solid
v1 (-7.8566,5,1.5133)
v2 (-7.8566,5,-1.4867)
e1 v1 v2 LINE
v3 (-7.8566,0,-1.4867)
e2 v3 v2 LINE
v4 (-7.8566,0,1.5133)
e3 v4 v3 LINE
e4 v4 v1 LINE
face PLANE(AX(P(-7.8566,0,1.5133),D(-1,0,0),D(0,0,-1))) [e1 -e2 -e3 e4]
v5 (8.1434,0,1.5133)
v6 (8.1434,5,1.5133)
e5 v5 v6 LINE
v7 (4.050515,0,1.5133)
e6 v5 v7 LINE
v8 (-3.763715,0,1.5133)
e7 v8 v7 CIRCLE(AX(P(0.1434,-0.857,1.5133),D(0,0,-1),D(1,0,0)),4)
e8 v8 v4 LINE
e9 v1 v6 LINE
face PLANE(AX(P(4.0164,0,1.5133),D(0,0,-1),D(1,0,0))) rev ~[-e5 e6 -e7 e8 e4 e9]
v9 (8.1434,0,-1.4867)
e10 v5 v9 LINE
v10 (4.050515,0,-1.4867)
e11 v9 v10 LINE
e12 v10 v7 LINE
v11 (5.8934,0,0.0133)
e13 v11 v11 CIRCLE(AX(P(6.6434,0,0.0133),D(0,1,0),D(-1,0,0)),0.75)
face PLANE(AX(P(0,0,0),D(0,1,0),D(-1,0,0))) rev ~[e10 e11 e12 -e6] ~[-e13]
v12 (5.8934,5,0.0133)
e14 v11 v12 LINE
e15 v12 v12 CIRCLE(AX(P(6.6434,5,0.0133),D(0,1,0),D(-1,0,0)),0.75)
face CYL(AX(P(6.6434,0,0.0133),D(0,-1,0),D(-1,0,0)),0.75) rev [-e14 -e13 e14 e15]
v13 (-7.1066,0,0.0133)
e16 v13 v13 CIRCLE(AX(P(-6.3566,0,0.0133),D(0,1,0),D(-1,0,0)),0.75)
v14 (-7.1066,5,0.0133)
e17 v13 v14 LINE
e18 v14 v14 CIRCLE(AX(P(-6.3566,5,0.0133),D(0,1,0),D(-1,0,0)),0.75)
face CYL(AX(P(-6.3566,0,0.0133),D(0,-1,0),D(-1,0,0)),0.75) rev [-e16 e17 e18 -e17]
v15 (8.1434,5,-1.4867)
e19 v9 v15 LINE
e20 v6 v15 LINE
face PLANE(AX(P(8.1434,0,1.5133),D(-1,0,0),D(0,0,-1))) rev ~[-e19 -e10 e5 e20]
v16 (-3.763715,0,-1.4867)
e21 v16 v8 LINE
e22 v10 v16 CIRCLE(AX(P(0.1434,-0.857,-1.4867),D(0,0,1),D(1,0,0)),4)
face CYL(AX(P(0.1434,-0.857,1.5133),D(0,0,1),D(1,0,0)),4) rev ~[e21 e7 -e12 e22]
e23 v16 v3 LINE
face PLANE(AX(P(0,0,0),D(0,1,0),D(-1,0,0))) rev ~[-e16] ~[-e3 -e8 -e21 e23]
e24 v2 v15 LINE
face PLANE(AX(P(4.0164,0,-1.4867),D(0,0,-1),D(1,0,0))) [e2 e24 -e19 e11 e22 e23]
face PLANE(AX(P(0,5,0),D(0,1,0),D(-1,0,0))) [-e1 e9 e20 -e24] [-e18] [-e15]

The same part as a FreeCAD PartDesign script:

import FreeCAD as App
import Part
import Sketcher
Q = App.Units.Quantity

doc = App.newDocument("Part")
params = doc.addObject("Spreadsheet::Sheet", "Params")
for row, (alias, value) in enumerate([
    ("sketch1_diameter", "1.5 mm"),
    ("sketch1_width", "16 mm"),
    ("sketch1_height", "3 mm"),
    ("pad1_length", "5 mm"),
    ("sketch2_diameter", "8 mm"),
], start=1):
    params.set(f"A{row}", alias)
    params.set(f"B{row}", "=" + value)
    params.setAlias(f"B{row}", alias)

body = doc.addObject("PartDesign::Body", "Body")

sketch1 = body.newObject("Sketcher::SketchObject", "Sketch")
sketch1.AttachmentSupport = (doc.getObject("XZ_Plane"), [""])
sketch1.MapMode = "FlatFace"
sketch1.addGeometry([
    Part.LineSegment(App.Vector(8.1434, -1.4867, 0), App.Vector(-7.8566, -1.4867, 0)),
    Part.LineSegment(App.Vector(-7.8566, -1.4867, 0), App.Vector(-7.8566, 1.5133, 0)),
    Part.LineSegment(App.Vector(-7.8566, 1.5133, 0), App.Vector(8.1434, 1.5133, 0)),
    Part.LineSegment(App.Vector(8.1434, 1.5133, 0), App.Vector(8.1434, -1.4867, 0)),
    Part.Circle(App.Vector(6.6434, 0.0133, 0), App.Vector(0, 0, 1), 0.75),
    Part.Circle(App.Vector(-6.3566, 0.0133, 0), App.Vector(0, 0, 1), 0.75),
], False)
sketch1.addConstraint([
    Sketcher.Constraint("Coincident", 0, 2, 1, 1),
    Sketcher.Constraint("Coincident", 1, 2, 2, 1),
    Sketcher.Constraint("Coincident", 2, 2, 3, 1),
    Sketcher.Constraint("Coincident", 3, 2, 0, 1),
    Sketcher.Constraint("Horizontal", 0),
    Sketcher.Constraint("Vertical", 1),
    Sketcher.Constraint("Horizontal", 2),
    Sketcher.Constraint("Vertical", 3),
    Sketcher.Constraint("Equal", 4, 5),
    Sketcher.Constraint("Horizontal", 4, 3, 5, 3),
    Sketcher.Constraint("Diameter", 4, Q("1.5 mm")),
    Sketcher.Constraint("DistanceX", 0, 2, 0, 1, Q("16 mm")),
    Sketcher.Constraint("DistanceY", 1, 1, 1, 2, Q("3 mm")),
    Sketcher.Constraint("DistanceX", 5, 3, 4, 3, Q("13 mm")),
    Sketcher.Constraint("DistanceX", 0, 2, 5, 3, Q("1.5 mm")),
    Sketcher.Constraint("DistanceY", 0, 2, 5, 3, Q("1.5 mm")),
    Sketcher.Constraint("DistanceX", -1, 1, 4, 3, Q("6.6434 mm")),
    Sketcher.Constraint("DistanceY", -1, 1, 4, 3, Q("0.0133 mm")),
])
sketch1.setExpression("Constraints[10]", "Params.sketch1_diameter")
sketch1.setExpression("Constraints[11]", "Params.sketch1_width")
sketch1.setExpression("Constraints[12]", "Params.sketch1_height")
pad1 = body.newObject("PartDesign::Pad", "Pad")
pad1.Profile = sketch1
pad1.setExpression("Length", "Params.pad1_length")
pad1.Reversed = True

sketch2 = body.newObject("Sketcher::SketchObject", "Sketch001")
sketch2.AttachmentSupport = (doc.getObject("XY_Plane"), [""])
sketch2.MapMode = "FlatFace"
sketch2.AttachmentOffset = App.Placement(App.Vector(0, 0, 1.5133), App.Rotation())
sketch2.addGeometry(Part.Circle(App.Vector(0.1434, -0.857, 0), App.Vector(0, 0, 1), 4), False)
sketch2.addConstraint([
    Sketcher.Constraint("Diameter", 0, Q("8 mm")),
    Sketcher.Constraint("DistanceY", 0, 3, -1, 1, Q("0.857 mm")),
    Sketcher.Constraint("DistanceX", -1, 1, 0, 3, Q("0.1434 mm")),
])
sketch2.setExpression("Constraints[0]", "Params.sketch2_diameter")
pocket1 = body.newObject("PartDesign::Pocket", "Pocket")
pocket1.Profile = sketch2
pocket1.Type = "ThroughAll"

doc.recompute()
